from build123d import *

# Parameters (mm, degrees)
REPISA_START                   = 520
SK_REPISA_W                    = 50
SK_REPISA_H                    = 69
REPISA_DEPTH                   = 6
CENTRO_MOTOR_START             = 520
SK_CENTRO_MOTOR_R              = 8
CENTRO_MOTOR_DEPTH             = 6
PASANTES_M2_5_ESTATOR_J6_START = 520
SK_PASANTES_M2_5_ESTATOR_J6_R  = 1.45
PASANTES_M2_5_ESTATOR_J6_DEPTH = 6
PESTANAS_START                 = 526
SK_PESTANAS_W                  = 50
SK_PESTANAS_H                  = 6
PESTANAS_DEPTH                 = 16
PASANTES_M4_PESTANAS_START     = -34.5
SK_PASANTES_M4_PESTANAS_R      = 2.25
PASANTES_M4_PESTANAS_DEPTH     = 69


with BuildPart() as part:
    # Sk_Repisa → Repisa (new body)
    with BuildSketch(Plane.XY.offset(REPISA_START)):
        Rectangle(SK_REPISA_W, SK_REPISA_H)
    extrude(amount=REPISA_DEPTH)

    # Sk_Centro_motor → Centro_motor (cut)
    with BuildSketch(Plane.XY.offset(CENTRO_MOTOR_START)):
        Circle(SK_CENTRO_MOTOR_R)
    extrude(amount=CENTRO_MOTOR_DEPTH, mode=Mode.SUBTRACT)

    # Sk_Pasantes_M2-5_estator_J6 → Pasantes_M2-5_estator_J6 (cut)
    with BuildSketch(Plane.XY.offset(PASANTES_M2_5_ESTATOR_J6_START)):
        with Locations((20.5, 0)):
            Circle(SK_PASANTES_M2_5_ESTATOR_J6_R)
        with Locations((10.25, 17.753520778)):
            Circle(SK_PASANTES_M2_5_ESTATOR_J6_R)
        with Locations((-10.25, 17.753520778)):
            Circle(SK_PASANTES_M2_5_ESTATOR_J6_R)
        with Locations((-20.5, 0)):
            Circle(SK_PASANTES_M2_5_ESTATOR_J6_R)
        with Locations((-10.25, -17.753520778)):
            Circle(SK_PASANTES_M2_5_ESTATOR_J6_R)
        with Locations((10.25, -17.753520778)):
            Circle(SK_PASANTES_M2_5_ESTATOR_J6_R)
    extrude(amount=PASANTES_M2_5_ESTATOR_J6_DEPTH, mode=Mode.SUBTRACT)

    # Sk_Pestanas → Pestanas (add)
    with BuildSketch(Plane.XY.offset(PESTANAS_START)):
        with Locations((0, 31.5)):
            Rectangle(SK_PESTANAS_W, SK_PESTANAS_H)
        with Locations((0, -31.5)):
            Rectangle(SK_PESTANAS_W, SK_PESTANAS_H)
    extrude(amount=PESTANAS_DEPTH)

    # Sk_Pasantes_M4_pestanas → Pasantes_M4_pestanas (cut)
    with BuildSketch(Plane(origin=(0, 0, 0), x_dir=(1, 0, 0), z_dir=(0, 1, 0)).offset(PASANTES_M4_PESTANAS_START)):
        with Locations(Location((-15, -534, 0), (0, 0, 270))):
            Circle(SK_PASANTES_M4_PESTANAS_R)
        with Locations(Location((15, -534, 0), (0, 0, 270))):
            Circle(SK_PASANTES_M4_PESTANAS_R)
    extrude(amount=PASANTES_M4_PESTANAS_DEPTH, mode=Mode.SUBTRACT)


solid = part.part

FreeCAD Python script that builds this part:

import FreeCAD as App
import Part
import Sketcher

V = App.Vector


def add_polygon(sketch, points):
    """Adds a closed chain of lines whose ends are joined by coincident constraints."""
    first, n = sketch.GeometryCount, len(points)
    for a, b in zip(points, points[1:] + points[:1]):
        sketch.addGeometry(Part.LineSegment(App.Vector(*a, 0), App.Vector(*b, 0)), False)
    for i in range(n):
        sketch.addConstraint(Sketcher.Constraint("Coincident", first + i, 2, first + (i + 1) % n, 1))

doc = App.newDocument("Part")
body = doc.addObject("PartDesign::Body", "Body")

sketch1 = body.newObject("Sketcher::SketchObject", "Sketch")
sketch1.AttachmentSupport = (doc.getObject("XY_Plane"), [""])
sketch1.MapMode = "FlatFace"
sketch1.AttachmentOffset = App.Placement(V(0, 0, 520), App.Rotation())
add_polygon(sketch1, [(-25, 34), (-25, -34), (25, -34), (25, 34)])
sketch1.addConstraint(Sketcher.Constraint("Vertical", 0))
sketch1.addConstraint(Sketcher.Constraint("Horizontal", 1))
sketch1.addConstraint(Sketcher.Constraint("Vertical", 2))
sketch1.addConstraint(Sketcher.Constraint("Horizontal", 3))
sketch1.addConstraint(Sketcher.Constraint("Symmetric", 0, 2, 2, 2, -1, 1))
sketch1.addConstraint(Sketcher.Constraint("DistanceX", 1, 1, 1, 2, 50.0))
sketch1.addConstraint(Sketcher.Constraint("DistanceY", 0, 2, 0, 1, 69.0))
pad1 = body.newObject("PartDesign::Pad", "Pad")
pad1.Profile = sketch1
pad1.Length = 6

sketch2 = body.newObject("Sketcher::SketchObject", "Sketch001")
sketch2.AttachmentSupport = (doc.getObject("XY_Plane"), [""])
sketch2.MapMode = "FlatFace"
sketch2.AttachmentOffset = App.Placement(V(0, 0, 520), App.Rotation())
sketch2.addGeometry(Part.Circle(V(0, 0, 0), V(0, 0, 1), 8), False)
sketch2.addConstraint(Sketcher.Constraint("Coincident", 0, 3, -1, 1))
sketch2.addConstraint(Sketcher.Constraint("Diameter", 0, 16.0))
pocket1 = body.newObject("PartDesign::Pocket", "Pocket")
pocket1.Profile = sketch2
pocket1.Length = 6
pocket1.Reversed = True

sketch3 = body.newObject("Sketcher::SketchObject", "Sketch002")
sketch3.AttachmentSupport = (doc.getObject("XY_Plane"), [""])
sketch3.MapMode = "FlatFace"
sketch3.AttachmentOffset = App.Placement(V(0, 0, 520), App.Rotation())
sketch3.addGeometry(Part.Circle(V(20.5, 0, 0), V(0, 0, 1), 1.4), False)
sketch3.addGeometry(Part.Circle(V(10.2, 17.8, 0), V(0, 0, 1), 1.4), False)
sketch3.addGeometry(Part.Circle(V(-10.2, 17.8, 0), V(0, 0, 1), 1.4), False)
sketch3.addGeometry(Part.Circle(V(-20.5, 0, 0), V(0, 0, 1), 1.4), False)
sketch3.addGeometry(Part.Circle(V(-10.2, -17.8, 0), V(0, 0, 1), 1.4), False)
sketch3.addGeometry(Part.Circle(V(10.2, -17.8, 0), V(0, 0, 1), 1.4), False)
sketch3.addConstraint(Sketcher.Constraint("Equal", 0, 1))
sketch3.addConstraint(Sketcher.Constraint("Equal", 1, 2))
sketch3.addConstraint(Sketcher.Constraint("Equal", 2, 3))
sketch3.addConstraint(Sketcher.Constraint("Equal", 3, 4))
sketch3.addConstraint(Sketcher.Constraint("Equal", 4, 5))
sketch3.addConstraint(Sketcher.Constraint("Symmetric", 0, 3, 3, 3, -1, 1))
sketch3.addConstraint(Sketcher.Constraint("Symmetric", 1, 3, 4, 3, -1, 1))
sketch3.addConstraint(Sketcher.Constraint("Symmetric", 2, 3, 5, 3, -1, 1))
sketch3.addConstraint(Sketcher.Constraint("Symmetric", 1, 3, 2, 3, -2))
sketch3.addConstraint(Sketcher.Constraint("PointOnObject", 0, 3, -1))
sketch3.addConstraint(Sketcher.Constraint("Diameter", 0, 2.9))
sketch3.addConstraint(Sketcher.Constraint("DistanceX", 3, 3, 0, 3, 41.0))
sketch3.addConstraint(Sketcher.Constraint("DistanceX", 2, 3, 1, 3, 20.5))
sketch3.addConstraint(Sketcher.Constraint("DistanceY", -1, 1, 1, 3, 17.753521))
pocket2 = body.newObject("PartDesign::Pocket", "Pocket001")
pocket2.Profile = sketch3
pocket2.Length = 6
pocket2.Reversed = True

sketch4 = body.newObject("Sketcher::SketchObject", "Sketch003")
sketch4.AttachmentSupport = (doc.getObject("XY_Plane"), [""])
sketch4.MapMode = "FlatFace"
sketch4.AttachmentOffset = App.Placement(V(0, 0, 526), App.Rotation())
add_polygon(sketch4, [(-25, 34), (-25, 28), (25, 28), (25, 34)])
add_polygon(sketch4, [(-25, -28), (-25, -34), (25, -34), (25, -28)])
sketch4.addConstraint(Sketcher.Constraint("Vertical", 0))
sketch4.addConstraint(Sketcher.Constraint("Horizontal", 1))
sketch4.addConstraint(Sketcher.Constraint("Vertical", 2))
sketch4.addConstraint(Sketcher.Constraint("Horizontal", 3))
sketch4.addConstraint(Sketcher.Constraint("Vertical", 4))
sketch4.addConstraint(Sketcher.Constraint("Horizontal", 5))
sketch4.addConstraint(Sketcher.Constraint("Vertical", 6))
sketch4.addConstraint(Sketcher.Constraint("Horizontal", 7))
sketch4.addConstraint(Sketcher.Constraint("Symmetric", 2, 2, 4, 2, -1, 1))
sketch4.addConstraint(Sketcher.Constraint("Symmetric", 0, 2, 6, 2, -1, 1))
sketch4.addConstraint(Sketcher.Constraint("Vertical", 3, 2, 4, 2))
sketch4.addConstraint(Sketcher.Constraint("DistanceX", 1, 1, 1, 2, 50.0))
sketch4.addConstraint(Sketcher.Constraint("DistanceY", 0, 2, 0, 1, 6.0))
sketch4.addConstraint(Sketcher.Constraint("DistanceY", 4, 2, 0, 2, 63.0))
pad2 = body.newObject("PartDesign::Pad", "Pad001")
pad2.Profile = sketch4
pad2.Length = 16

sketch5 = body.newObject("Sketcher::SketchObject", "Sketch004")
sketch5.AttachmentSupport = (doc.getObject("XZ_Plane"), [""])
sketch5.MapMode = "FlatFace"
sketch5.AttachmentOffset = App.Placement(V(0, 0, 34.5), App.Rotation())
sketch5.addGeometry(Part.Circle(V(-15, 534, 0), V(0, 0, 1), 2.2), False)
sketch5.addGeometry(Part.Circle(V(15, 534, 0), V(0, 0, 1), 2.2), False)
sketch5.addConstraint(Sketcher.Constraint("Equal", 0, 1))
sketch5.addConstraint(Sketcher.Constraint("Symmetric", 0, 3, 1, 3, -2))
sketch5.addConstraint(Sketcher.Constraint("Diameter", 0, 4.5))
sketch5.addConstraint(Sketcher.Constraint("DistanceX", 0, 3, -1, 1, 15.0))
sketch5.addConstraint(Sketcher.Constraint("DistanceY", -1, 1, 0, 3, 534.0))
pocket3 = body.newObject("PartDesign::Pocket", "Pocket002")
pocket3.Profile = sketch5
pocket3.Length = 69

doc.recompute()
